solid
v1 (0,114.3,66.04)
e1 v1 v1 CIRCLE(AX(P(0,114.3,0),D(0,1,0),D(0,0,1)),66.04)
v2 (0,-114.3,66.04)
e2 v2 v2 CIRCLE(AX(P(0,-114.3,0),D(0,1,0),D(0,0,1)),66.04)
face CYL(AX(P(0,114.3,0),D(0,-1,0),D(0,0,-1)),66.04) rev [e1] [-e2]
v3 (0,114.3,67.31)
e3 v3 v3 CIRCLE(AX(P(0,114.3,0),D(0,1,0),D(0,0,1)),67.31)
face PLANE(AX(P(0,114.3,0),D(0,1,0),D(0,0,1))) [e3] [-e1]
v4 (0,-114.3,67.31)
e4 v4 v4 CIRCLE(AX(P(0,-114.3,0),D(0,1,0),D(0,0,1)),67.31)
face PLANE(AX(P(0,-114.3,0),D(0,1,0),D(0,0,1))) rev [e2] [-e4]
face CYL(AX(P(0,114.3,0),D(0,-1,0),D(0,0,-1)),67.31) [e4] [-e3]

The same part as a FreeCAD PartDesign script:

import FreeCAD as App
import Part
import Sketcher

V = App.Vector
Q = App.Units.Quantity

doc = App.newDocument("Part")
params = doc.addObject("Spreadsheet::Sheet", "Params")
for row, (alias, value) in enumerate([
    ("sketch1_diameter", "5.3 in"),
    ("sketch1_diameter2", "5.2 in"),
    ("pad1_length", "9 in"),
], start=1):
    params.set(f"A{row}", alias)
    params.set(f"B{row}", "=" + value)
    params.setAlias(f"B{row}", alias)

body = doc.addObject("PartDesign::Body", "Body")

# Sketch on XZ plane
sketch1 = doc.addObject("Sketcher::SketchObject", "Sketch")
body.addObject(sketch1)
sketch1.AttachmentSupport = (doc.XZ_Plane, [""])
sketch1.MapMode = "FlatFace"
sketch1.addGeometry([
    Part.Circle(V(0, 0, 0), V(0, 0, 1), 67),
    Part.Circle(V(0, 0, 0), V(0, 0, 1), 66),
], False)
sketch1.addConstraint([
    Sketcher.Constraint("Coincident", 0, 3, -1, 1),
    Sketcher.Constraint("Coincident", 1, 3, -1, 1),
    Sketcher.Constraint("Diameter", 0, Q("5.3 in")),
    Sketcher.Constraint("Diameter", 1, Q("5.2 in")),
])
sketch1.setExpression("Constraints[2]", "Params.sketch1_diameter")
sketch1.setExpression("Constraints[3]", "Params.sketch1_diameter2")
pad1 = doc.addObject("PartDesign::Pad", "Pad")
body.addObject(pad1)
pad1.Profile = sketch1
pad1.setExpression("Length", "Params.pad1_length")
pad1.Midplane = True

doc.recompute()
